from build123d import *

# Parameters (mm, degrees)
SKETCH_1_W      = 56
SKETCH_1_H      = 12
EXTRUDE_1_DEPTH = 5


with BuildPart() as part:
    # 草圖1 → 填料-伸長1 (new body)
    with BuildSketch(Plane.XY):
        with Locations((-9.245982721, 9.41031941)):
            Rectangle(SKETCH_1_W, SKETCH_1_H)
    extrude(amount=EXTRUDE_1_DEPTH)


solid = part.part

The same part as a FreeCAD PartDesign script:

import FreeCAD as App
import Part
import Sketcher
from FreeCAD import Vector

doc = App.newDocument("Part")
body = doc.addObject("PartDesign::Body", "Body")

# Sketch on XY plane
sketch1 = body.newObject("Sketcher::SketchObject", "Sketch")
sketch1.AttachmentSupport = (doc.getObject("XY_Plane"), [""])
sketch1.MapMode = "FlatFace"
sketch1.addGeometry(Part.LineSegment(Vector(-37.245983, 15.410319, 0), Vector(-37.245983, 3.410319, 0)), False)
sketch1.addGeometry(Part.LineSegment(Vector(-37.245983, 3.410319, 0), Vector(18.754017, 3.410319, 0)), False)
sketch1.addGeometry(Part.LineSegment(Vector(18.754017, 3.410319, 0), Vector(18.754017, 15.410319, 0)), False)
sketch1.addGeometry(Part.LineSegment(Vector(18.754017, 15.410319, 0), Vector(-37.245983, 15.410319, 0)), False)
sketch1.addConstraint(Sketcher.Constraint("Coincident", 0, 2, 1, 1))
sketch1.addConstraint(Sketcher.Constraint("Coincident", 1, 2, 2, 1))
sketch1.addConstraint(Sketcher.Constraint("Coincident", 2, 2, 3, 1))
sketch1.addConstraint(Sketcher.Constraint("Coincident", 3, 2, 0, 1))
sketch1.addConstraint(Sketcher.Constraint("Vertical", 0))
sketch1.addConstraint(Sketcher.Constraint("Horizontal", 1))
sketch1.addConstraint(Sketcher.Constraint("Vertical", 2))
sketch1.addConstraint(Sketcher.Constraint("Horizontal", 3))
sketch1.addConstraint(Sketcher.Constraint("DistanceX", 1, 1, 1, 2, 56.0))
sketch1.addConstraint(Sketcher.Constraint("DistanceY", 0, 2, 0, 1, 12.0))
sketch1.addConstraint(Sketcher.Constraint("DistanceY", -1, 1, 0, 2, 3.410319))
sketch1.addConstraint(Sketcher.Constraint("DistanceX", 0, 2, -1, 1, 37.245983))
pad1 = body.newObject("PartDesign::Pad", "Pad")
pad1.Profile = sketch1
pad1.Length = 5

doc.recompute()
